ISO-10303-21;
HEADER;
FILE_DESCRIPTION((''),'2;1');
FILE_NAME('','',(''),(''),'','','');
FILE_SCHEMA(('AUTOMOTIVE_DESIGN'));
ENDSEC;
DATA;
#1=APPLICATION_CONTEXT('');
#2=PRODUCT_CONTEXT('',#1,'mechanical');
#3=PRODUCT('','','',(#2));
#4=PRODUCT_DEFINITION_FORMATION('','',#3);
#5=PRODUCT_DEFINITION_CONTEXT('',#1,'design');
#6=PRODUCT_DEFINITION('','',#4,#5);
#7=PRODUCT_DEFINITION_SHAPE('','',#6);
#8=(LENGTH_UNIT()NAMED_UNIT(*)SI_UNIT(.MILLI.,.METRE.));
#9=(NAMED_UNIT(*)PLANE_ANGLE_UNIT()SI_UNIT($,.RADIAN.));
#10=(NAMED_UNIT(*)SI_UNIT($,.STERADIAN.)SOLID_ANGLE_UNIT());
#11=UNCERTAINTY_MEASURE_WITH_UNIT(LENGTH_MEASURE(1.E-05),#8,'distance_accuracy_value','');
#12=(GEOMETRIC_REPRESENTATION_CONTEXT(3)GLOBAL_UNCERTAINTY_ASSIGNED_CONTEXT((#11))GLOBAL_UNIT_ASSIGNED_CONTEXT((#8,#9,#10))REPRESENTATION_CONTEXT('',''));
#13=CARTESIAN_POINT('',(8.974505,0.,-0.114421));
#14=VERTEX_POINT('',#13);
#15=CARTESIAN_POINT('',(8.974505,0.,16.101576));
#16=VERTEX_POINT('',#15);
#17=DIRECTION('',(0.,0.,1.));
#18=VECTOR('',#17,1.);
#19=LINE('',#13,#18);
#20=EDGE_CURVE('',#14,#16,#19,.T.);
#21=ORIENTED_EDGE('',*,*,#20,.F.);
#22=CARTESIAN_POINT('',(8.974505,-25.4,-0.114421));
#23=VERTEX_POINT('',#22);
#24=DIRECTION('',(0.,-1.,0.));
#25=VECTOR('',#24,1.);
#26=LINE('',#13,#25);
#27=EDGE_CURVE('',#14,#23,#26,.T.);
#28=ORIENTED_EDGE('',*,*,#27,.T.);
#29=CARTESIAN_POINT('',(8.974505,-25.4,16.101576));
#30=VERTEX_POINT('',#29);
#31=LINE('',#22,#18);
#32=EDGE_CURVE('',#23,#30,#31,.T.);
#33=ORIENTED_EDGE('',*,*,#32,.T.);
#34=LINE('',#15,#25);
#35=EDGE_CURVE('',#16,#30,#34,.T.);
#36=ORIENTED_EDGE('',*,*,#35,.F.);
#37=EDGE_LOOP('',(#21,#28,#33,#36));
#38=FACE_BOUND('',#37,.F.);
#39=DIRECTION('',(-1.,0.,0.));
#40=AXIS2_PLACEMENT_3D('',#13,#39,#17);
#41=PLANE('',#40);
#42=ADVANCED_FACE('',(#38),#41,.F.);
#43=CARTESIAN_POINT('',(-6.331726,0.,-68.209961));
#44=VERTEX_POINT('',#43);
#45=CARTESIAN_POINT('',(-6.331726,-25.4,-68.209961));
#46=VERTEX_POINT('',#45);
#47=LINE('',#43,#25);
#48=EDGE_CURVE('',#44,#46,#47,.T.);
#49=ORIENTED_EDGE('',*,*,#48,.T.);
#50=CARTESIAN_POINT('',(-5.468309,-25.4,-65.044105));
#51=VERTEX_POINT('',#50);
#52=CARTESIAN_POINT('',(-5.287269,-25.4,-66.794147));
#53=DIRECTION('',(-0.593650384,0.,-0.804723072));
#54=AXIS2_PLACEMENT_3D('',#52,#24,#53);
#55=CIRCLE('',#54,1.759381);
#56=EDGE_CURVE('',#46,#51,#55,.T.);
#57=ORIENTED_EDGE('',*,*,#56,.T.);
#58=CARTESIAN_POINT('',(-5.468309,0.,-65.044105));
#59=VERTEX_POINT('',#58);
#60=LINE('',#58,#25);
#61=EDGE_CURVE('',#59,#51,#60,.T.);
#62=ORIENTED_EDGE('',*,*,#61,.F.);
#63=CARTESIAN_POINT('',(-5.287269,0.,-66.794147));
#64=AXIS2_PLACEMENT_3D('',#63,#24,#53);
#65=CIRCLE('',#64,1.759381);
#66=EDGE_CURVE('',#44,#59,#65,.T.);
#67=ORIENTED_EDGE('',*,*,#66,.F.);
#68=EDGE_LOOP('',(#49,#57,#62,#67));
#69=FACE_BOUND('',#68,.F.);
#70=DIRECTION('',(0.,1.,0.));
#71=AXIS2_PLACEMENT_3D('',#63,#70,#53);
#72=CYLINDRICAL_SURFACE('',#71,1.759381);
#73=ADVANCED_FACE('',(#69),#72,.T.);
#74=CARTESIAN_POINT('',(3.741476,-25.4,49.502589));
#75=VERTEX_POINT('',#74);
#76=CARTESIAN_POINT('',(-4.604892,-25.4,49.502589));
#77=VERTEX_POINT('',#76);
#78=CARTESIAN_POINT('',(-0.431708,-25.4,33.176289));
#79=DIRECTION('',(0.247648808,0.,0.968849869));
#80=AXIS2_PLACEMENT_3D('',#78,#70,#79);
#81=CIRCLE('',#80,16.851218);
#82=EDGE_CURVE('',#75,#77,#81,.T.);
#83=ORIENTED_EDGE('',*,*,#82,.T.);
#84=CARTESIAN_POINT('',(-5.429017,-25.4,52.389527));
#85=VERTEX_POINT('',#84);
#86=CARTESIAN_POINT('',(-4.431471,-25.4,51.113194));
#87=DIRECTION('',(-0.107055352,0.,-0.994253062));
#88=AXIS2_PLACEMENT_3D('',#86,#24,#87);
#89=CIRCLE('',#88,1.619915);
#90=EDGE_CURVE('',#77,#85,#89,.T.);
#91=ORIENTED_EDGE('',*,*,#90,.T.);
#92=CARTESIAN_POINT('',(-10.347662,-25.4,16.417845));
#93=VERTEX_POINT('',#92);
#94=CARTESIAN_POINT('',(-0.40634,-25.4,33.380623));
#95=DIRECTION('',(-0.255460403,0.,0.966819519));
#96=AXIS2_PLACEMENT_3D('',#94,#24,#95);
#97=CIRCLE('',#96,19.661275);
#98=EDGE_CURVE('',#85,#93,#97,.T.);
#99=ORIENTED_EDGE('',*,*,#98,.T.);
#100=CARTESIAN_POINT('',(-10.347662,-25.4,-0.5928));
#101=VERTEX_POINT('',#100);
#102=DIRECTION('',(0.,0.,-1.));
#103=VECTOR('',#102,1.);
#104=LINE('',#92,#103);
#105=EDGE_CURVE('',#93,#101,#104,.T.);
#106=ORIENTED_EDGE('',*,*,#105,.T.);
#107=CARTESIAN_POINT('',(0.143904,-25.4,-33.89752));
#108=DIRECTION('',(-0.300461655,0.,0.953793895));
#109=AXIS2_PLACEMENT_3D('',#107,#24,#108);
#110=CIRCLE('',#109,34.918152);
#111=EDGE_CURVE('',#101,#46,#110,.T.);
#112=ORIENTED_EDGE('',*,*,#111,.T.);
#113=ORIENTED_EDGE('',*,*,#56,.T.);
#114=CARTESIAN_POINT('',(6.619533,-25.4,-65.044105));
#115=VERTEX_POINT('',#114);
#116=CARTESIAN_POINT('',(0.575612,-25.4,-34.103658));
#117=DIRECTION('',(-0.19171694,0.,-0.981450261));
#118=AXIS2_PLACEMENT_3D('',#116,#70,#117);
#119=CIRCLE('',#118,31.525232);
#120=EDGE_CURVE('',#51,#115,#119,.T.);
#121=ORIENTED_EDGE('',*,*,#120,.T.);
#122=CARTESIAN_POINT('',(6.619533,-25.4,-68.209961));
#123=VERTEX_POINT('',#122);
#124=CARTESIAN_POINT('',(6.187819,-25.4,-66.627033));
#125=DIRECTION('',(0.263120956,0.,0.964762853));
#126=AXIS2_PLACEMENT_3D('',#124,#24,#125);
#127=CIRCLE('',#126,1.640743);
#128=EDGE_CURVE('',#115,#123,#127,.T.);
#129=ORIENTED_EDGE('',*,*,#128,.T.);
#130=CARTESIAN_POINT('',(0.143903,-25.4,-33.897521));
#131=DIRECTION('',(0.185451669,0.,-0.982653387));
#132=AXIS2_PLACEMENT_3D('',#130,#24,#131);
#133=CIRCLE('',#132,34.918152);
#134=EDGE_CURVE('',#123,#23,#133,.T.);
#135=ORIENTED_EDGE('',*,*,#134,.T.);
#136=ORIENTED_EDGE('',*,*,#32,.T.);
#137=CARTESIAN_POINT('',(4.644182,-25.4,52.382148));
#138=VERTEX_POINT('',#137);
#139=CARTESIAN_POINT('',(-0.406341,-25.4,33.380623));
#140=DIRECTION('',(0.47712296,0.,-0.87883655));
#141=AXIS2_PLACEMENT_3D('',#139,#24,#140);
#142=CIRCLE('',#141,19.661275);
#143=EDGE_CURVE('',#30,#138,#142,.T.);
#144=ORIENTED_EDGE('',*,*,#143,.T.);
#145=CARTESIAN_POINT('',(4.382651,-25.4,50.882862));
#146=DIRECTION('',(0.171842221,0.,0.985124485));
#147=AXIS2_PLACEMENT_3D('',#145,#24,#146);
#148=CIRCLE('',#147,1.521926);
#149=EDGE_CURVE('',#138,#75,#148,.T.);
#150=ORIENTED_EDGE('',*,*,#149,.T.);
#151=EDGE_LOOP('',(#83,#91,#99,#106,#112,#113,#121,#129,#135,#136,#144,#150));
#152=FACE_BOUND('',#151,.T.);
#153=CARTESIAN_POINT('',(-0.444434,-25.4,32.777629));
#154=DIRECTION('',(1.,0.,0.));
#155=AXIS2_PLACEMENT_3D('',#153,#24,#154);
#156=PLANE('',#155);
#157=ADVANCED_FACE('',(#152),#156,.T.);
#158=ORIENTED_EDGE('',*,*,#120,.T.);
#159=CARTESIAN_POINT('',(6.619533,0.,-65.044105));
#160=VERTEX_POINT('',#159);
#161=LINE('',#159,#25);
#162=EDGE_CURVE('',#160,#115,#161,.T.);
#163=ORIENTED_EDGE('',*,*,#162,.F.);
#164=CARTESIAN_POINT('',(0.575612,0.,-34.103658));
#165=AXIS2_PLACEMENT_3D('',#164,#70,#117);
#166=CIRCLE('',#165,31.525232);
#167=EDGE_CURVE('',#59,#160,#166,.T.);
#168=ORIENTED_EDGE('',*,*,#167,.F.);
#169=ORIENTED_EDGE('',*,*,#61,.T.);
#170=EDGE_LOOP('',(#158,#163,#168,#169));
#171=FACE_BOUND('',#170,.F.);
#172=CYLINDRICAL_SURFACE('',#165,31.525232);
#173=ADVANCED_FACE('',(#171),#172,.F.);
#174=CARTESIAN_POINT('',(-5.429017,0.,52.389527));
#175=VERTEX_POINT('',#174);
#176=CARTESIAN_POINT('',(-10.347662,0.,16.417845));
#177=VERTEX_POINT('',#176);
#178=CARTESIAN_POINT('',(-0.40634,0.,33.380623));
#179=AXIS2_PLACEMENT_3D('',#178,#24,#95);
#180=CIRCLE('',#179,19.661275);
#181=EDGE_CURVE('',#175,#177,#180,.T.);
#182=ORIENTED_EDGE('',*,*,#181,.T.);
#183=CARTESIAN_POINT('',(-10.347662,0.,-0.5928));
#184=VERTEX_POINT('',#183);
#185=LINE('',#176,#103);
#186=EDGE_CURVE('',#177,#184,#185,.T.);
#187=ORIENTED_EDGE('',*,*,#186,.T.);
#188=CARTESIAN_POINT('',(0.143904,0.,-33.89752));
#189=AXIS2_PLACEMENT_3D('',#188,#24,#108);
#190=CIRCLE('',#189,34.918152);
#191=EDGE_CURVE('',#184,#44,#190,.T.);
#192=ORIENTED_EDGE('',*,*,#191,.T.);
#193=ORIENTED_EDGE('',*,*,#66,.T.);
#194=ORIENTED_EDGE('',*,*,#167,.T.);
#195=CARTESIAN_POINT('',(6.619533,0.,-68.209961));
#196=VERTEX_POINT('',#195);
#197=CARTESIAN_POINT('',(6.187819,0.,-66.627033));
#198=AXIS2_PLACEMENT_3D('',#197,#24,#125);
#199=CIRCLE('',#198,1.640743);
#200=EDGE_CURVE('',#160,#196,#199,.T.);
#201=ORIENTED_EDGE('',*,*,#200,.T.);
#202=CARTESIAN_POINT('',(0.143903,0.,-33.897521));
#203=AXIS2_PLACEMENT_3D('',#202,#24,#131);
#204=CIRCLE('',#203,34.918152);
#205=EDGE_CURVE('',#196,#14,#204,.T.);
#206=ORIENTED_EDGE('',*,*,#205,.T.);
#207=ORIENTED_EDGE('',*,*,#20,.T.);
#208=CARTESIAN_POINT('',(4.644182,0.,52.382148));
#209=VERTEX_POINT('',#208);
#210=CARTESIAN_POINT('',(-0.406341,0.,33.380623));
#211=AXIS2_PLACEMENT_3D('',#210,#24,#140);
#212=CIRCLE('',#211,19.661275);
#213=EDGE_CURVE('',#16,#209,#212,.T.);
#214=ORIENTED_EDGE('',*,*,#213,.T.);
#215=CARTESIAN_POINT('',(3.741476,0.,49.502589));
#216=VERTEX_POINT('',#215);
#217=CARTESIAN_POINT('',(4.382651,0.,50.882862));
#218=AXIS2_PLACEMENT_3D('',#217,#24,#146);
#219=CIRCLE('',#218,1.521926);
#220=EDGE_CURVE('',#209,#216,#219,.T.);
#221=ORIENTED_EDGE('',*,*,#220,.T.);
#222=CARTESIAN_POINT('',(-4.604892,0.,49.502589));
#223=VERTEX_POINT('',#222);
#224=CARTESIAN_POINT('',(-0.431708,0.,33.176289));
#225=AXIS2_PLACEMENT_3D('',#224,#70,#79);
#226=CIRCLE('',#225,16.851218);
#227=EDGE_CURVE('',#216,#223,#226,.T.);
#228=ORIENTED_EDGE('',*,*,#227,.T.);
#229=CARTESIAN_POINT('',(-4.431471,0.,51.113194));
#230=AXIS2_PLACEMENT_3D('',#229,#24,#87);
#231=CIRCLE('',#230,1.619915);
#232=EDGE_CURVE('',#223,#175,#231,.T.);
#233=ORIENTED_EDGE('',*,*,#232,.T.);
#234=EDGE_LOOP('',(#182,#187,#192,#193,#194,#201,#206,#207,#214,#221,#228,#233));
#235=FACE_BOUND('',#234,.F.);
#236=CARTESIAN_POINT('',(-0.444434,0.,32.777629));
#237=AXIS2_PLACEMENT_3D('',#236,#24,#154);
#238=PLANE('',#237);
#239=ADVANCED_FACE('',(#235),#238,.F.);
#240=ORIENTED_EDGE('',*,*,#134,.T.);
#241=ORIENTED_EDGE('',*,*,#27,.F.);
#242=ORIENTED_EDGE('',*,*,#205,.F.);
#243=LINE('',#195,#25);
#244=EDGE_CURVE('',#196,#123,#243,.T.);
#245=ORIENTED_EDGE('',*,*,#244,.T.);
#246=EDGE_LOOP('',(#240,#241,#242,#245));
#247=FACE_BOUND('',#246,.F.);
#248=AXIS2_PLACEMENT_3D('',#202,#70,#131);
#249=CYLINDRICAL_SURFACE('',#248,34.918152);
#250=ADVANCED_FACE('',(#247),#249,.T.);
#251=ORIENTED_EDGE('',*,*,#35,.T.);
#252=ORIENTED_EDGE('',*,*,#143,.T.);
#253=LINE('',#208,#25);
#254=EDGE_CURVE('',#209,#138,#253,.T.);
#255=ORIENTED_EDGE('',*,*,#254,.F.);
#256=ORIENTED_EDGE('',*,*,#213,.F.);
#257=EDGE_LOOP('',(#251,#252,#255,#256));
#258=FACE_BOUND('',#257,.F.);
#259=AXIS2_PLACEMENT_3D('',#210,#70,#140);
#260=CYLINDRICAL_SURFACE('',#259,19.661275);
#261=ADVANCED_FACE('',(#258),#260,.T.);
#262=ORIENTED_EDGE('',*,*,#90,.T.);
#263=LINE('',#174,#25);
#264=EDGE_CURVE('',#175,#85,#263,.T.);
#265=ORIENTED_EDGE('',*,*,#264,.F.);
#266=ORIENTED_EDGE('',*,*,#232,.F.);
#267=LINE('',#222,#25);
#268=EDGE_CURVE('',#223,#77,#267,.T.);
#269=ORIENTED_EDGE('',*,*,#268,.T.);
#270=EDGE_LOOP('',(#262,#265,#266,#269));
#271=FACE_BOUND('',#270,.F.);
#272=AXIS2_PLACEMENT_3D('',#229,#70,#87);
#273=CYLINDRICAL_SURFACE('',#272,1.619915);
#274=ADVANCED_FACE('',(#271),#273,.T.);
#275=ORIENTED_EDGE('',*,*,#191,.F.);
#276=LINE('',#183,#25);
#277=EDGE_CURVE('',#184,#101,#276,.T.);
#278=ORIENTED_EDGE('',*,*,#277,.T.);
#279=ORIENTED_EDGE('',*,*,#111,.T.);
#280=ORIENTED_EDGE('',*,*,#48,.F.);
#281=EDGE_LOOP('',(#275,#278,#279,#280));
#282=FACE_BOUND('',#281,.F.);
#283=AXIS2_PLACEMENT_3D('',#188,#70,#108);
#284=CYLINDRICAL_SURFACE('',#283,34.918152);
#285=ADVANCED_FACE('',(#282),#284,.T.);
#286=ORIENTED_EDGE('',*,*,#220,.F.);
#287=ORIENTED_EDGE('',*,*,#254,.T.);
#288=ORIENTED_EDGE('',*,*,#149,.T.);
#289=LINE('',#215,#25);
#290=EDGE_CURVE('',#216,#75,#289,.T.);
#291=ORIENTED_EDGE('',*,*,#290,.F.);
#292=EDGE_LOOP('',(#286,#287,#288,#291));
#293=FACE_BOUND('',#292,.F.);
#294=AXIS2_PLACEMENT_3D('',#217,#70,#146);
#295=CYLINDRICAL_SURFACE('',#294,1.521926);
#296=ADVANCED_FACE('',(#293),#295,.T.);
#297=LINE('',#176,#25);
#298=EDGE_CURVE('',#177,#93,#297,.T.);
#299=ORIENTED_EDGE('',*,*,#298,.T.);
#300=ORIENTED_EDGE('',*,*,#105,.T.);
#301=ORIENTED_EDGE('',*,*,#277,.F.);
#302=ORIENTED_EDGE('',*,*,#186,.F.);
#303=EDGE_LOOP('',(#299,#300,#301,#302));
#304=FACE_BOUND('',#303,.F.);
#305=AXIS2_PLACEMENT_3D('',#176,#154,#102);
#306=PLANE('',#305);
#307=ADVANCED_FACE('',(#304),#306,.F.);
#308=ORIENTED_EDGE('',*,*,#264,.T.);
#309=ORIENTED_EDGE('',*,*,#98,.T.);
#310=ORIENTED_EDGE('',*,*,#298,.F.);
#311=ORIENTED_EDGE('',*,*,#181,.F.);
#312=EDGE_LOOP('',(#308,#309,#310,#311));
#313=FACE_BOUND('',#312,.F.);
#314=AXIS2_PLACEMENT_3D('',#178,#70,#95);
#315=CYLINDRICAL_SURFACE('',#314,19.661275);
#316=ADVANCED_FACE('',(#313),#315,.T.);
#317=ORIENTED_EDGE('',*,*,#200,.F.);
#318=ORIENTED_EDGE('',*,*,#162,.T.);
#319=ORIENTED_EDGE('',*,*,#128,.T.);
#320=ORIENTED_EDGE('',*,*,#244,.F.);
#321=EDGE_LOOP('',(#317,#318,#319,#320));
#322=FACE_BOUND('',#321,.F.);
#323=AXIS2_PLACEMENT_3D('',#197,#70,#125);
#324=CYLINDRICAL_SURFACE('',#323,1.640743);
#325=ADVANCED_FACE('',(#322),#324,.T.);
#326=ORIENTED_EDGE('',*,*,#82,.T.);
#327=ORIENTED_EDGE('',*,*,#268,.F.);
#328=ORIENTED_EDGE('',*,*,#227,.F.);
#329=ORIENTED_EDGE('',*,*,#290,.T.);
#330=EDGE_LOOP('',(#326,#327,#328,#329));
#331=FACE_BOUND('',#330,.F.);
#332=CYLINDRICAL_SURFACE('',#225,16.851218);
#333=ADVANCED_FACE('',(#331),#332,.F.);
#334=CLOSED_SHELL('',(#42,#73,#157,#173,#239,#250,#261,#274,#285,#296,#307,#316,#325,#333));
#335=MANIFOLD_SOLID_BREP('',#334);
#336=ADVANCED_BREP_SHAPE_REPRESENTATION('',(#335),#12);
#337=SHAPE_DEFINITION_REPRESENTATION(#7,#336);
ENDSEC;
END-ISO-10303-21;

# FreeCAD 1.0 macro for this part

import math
import FreeCAD as App
import Part
import Sketcher

V = App.Vector
Q = App.Units.Quantity

doc = App.newDocument("Part")
body = doc.addObject("PartDesign::Body", "Body")

sketch1 = doc.addObject("Sketcher::SketchObject", "Sketch")
body.addObject(sketch1)
sketch1.AttachmentSupport = (doc.XZ_Plane, [""])
sketch1.MapMode = "FlatFace"
sketch1.addGeometry([
    Part.ArcOfCircle(Part.Circle(V(-4.431471, 51.113194, 0), V(0, 0, 1), 1.619915), math.radians(-96.145597), math.radians(128.01017)),
    Part.ArcOfCircle(Part.Circle(V(-0.40634, 33.380623, 0), V(0, 0, 1), 19.661275), math.radians(104.800868), math.radians(239.626845)),
    Part.LineSegment(V(-10.347662, 16.417845, 0), V(-10.347662, -0.5928, 0)),
    Part.ArcOfCircle(Part.Circle(V(0.143904, -33.89752, 0), V(0, 0, 1), 34.918152), math.radians(107.485333), math.radians(259.312533)),
    Part.ArcOfCircle(Part.Circle(V(-5.287269, -66.794147, 0), V(0, 0, 1), 1.759381), math.radians(-126.416481), math.radians(95.906185)),
    Part.ArcOfCircle(Part.Circle(V(0.575612, -34.103658, 0), V(0, 0, 1), 31.525232), math.radians(-78.947), math.radians(258.947)),
    Part.ArcOfCircle(Part.Circle(V(6.187819, -66.627033, 0), V(0, 0, 1), 1.640743), math.radians(74.74467), math.radians(285.25533)),
    Part.ArcOfCircle(Part.Circle(V(0.143903, -33.897521, 0), V(0, 0, 1), 34.918152), math.radians(-79.312533), math.radians(75.351152)),
    Part.LineSegment(V(8.974505, -0.114421, 0), V(8.974505, 16.101576, 0)),
    Part.ArcOfCircle(Part.Circle(V(-0.406341, 33.380623, 0), V(0, 0, 1), 19.661275), math.radians(-61.502334), math.radians(75.115185)),
    Part.ArcOfCircle(Part.Circle(V(4.382651, 50.882862, 0), V(0, 0, 1), 1.521926), math.radians(80.105053), math.radians(245.083826)),
    Part.ArcOfCircle(Part.Circle(V(-0.431708, 33.176289, 0), V(0, 0, 1), 16.851218), math.radians(104.338424), math.radians(435.661576)),
], False)
sketch1.addConstraint([
    Sketcher.Constraint("Coincident", 0, 2, 1, 1),
    Sketcher.Constraint("Coincident", 1, 2, 2, 1),
    Sketcher.Constraint("Coincident", 2, 2, 3, 1),
    Sketcher.Constraint("Coincident", 3, 2, 4, 1),
    Sketcher.Constraint("Coincident", 4, 2, 5, 2),
    Sketcher.Constraint("Coincident", 5, 1, 6, 1),
    Sketcher.Constraint("Coincident", 6, 2, 7, 1),
    Sketcher.Constraint("Coincident", 7, 2, 8, 1),
    Sketcher.Constraint("Coincident", 8, 2, 9, 1),
    Sketcher.Constraint("Coincident", 9, 2, 10, 1),
    Sketcher.Constraint("Coincident", 10, 2, 11, 2),
    Sketcher.Constraint("Coincident", 11, 1, 0, 1),
    Sketcher.Constraint("Vertical", 2),
    Sketcher.Constraint("Vertical", 8),
    Sketcher.Constraint("Coincident", 7, 3, 3, 3),
    Sketcher.Constraint("Coincident", 9, 3, 1, 3),
    Sketcher.Constraint("Equal", 3, 7),
    Sketcher.Constraint("Equal", 1, 9),
    Sketcher.Constraint("Horizontal", 4, 2, 5, 1),
    Sketcher.Constraint("Horizontal", 3, 2, 6, 2),
    Sketcher.Constraint("Horizontal", 10, 2, 11, 1),
    Sketcher.Constraint("Vertical", 5, 1, 6, 2),
    Sketcher.Constraint("Radius", 4, Q("1.759381 mm")),
    Sketcher.Constraint("Radius", 5, Q("31.525232 mm")),
    Sketcher.Constraint("Radius", 0, Q("1.619915 mm")),
    Sketcher.Constraint("Radius", 1, Q("19.661275 mm")),
    Sketcher.Constraint("Radius", 3, Q("34.918152 mm")),
    Sketcher.Constraint("Radius", 6, Q("1.640743 mm")),
    Sketcher.Constraint("Radius", 10, Q("1.521926 mm")),
    Sketcher.Constraint("Radius", 11, Q("16.851218 mm")),
    Sketcher.Constraint("DistanceX", 1, 3, 10, 2, Q("0.1632998 in")),
    Sketcher.Constraint("DistanceY", 2, 2, -1, 1, Q("0.5928 mm")),
    Sketcher.Constraint("DistanceX", 4, 3, 5, 1, Q("11.906802 mm")),
    Sketcher.Constraint("DistanceX", 0, 2, 9, 2, Q("10.073199 mm")),
    Sketcher.Constraint("DistanceY", 2, 2, 2, 1, Q("17.010645 mm")),
    Sketcher.Constraint("DistanceY", 8, 1, 8, 2, Q("16.215997 mm")),
    Sketcher.Constraint("DistanceX", 0, 3, -1, 1, Q("4.431471 mm")),
    Sketcher.Constraint("DistanceX", 1, 3, -1, 1, Q("0.40634 mm")),
    Sketcher.Constraint("DistanceY", 3, 3, -1, 1, Q("33.89752 mm")),
    Sketcher.Constraint("DistanceX", 4, 3, -1, 1, Q("5.287269 mm")),
    Sketcher.Constraint("DistanceX", -1, 1, 6, 3, Q("6.187819 mm")),
    Sketcher.Constraint("DistanceX", -1, 1, 10, 3, Q("4.382651 mm")),
    Sketcher.Constraint("DistanceY", -1, 1, 10, 3, Q("50.882862 mm")),
    Sketcher.Constraint("DistanceY", -1, 1, 11, 3, Q("33.176289 mm")),
])
pad1 = doc.addObject("PartDesign::Pad", "Pad")
body.addObject(pad1)
pad1.Profile = sketch1
pad1.Length = Q("1 in")

doc.recompute()
